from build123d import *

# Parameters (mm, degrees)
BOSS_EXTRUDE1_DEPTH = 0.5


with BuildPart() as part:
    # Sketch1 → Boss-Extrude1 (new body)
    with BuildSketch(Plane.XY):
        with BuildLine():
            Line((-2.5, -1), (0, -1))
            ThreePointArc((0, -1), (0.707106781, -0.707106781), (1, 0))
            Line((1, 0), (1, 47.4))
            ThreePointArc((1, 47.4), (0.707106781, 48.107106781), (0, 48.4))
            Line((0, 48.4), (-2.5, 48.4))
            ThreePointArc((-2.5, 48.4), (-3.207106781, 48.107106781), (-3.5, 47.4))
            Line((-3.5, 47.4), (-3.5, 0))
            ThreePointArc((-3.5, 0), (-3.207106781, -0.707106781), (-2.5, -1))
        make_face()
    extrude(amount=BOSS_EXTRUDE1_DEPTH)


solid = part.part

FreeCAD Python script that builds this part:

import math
import FreeCAD as App
import Part
import Sketcher
Q = App.Units.Quantity

doc = App.newDocument("Part")
body = doc.addObject("PartDesign::Body", "Body")

# Sketch on XY plane
sketch1 = doc.addObject("Sketcher::SketchObject", "Sketch")
body.addObject(sketch1)
sketch1.AttachmentSupport = (doc.XY_Plane, [""])
sketch1.MapMode = "FlatFace"
sketch1.addGeometry([
    Part.LineSegment(App.Vector(-2.5, -1, 0), App.Vector(0, -1, 0)),  # 0
    Part.ArcOfCircle(Part.Circle(App.Vector(0, 0, 0), App.Vector(0, 0, 1), 1), math.radians(-90), math.radians(0)),  # 1
    Part.LineSegment(App.Vector(1, 0, 0), App.Vector(1, 47.4, 0)),  # 2
    Part.ArcOfCircle(Part.Circle(App.Vector(0, 47.4, 0), App.Vector(0, 0, 1), 1), math.radians(0), math.radians(90)),  # 3
    Part.LineSegment(App.Vector(0, 48.4, 0), App.Vector(-2.5, 48.4, 0)),  # 4
    Part.ArcOfCircle(Part.Circle(App.Vector(-2.5, 47.4, 0), App.Vector(0, 0, 1), 1), math.radians(90), math.radians(180)),  # 5
    Part.LineSegment(App.Vector(-3.5, 47.4, 0), App.Vector(-3.5, 0, 0)),  # 6
    Part.ArcOfCircle(Part.Circle(App.Vector(-2.5, 0, 0), App.Vector(0, 0, 1), 1), math.radians(-180), math.radians(-90)),  # 7
], False)
sketch1.addConstraint([
    Sketcher.Constraint("Tangent", 0, 2, 1, 1),
    Sketcher.Constraint("Tangent", 1, 2, 2, 1),
    Sketcher.Constraint("Tangent", 2, 2, 3, 1),
    Sketcher.Constraint("Tangent", 3, 2, 4, 1),
    Sketcher.Constraint("Tangent", 4, 2, 5, 1),
    Sketcher.Constraint("Tangent", 5, 2, 6, 1),
    Sketcher.Constraint("Tangent", 6, 2, 7, 1),
    Sketcher.Constraint("Tangent", 7, 2, 0, 1),
    Sketcher.Constraint("Horizontal", 0),
    Sketcher.Constraint("Vertical", 2),
    Sketcher.Constraint("Horizontal", 4),
    Sketcher.Constraint("Vertical", 6),
    Sketcher.Constraint("Coincident", 1, 3, -1, 1),
    Sketcher.Constraint("Equal", 1, 3),
    Sketcher.Constraint("Equal", 3, 5),
    Sketcher.Constraint("Equal", 5, 7),
    Sketcher.Constraint("Radius", 1, Q("1 mm")),
    Sketcher.Constraint("DistanceX", 0, 1, 0, 2, Q("2.5 mm")),
    Sketcher.Constraint("DistanceY", 2, 1, 2, 2, Q("47.4 mm")),
])
pad1 = doc.addObject("PartDesign::Pad", "Pad")
body.addObject(pad1)
pad1.Profile = sketch1
pad1.Length = 0.5

doc.recompute()
